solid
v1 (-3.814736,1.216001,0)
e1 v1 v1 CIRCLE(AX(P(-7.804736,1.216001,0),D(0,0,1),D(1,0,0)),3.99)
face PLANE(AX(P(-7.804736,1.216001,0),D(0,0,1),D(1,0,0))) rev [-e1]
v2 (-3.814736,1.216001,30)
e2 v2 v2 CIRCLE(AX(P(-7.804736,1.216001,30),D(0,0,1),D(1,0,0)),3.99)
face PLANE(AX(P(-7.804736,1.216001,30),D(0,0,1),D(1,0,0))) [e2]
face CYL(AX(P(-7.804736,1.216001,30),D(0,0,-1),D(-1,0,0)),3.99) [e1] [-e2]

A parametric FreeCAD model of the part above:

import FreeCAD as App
import Part
import Sketcher
from FreeCAD import Vector

doc = App.newDocument("Part")
params = doc.addObject("Spreadsheet::Sheet", "Params")
for row, (alias, value) in enumerate([
    ("sketch1_diameter", "7.98 mm"),
    ("pad1_length", "30 mm"),
], start=1):
    params.set(f"A{row}", alias)
    params.set(f"B{row}", "=" + value)
    params.setAlias(f"B{row}", alias)

body = doc.addObject("PartDesign::Body", "Body")

# Sketch on XY plane
sketch1 = doc.addObject("Sketcher::SketchObject", "Sketch")
body.addObject(sketch1)
sketch1.AttachmentSupport = (doc.XY_Plane, [""])
sketch1.MapMode = "FlatFace"
sketch1.addGeometry(Part.Circle(Vector(-7.8, 1.2, 0), Vector(0, 0, 1), 4), False)
sketch1.addConstraint(Sketcher.Constraint("Diameter", 0, 7.98))
sketch1.addConstraint(Sketcher.Constraint("DistanceY", -1, 1, 0, 3, 1.216001))
sketch1.addConstraint(Sketcher.Constraint("DistanceX", 0, 3, -1, 1, 7.804736))
sketch1.setExpression("Constraints[0]", "Params.sketch1_diameter")
pad1 = doc.addObject("PartDesign::Pad", "Pad")
body.addObject(pad1)
pad1.Profile = sketch1
pad1.setExpression("Length", "Params.pad1_length")

doc.recompute()
